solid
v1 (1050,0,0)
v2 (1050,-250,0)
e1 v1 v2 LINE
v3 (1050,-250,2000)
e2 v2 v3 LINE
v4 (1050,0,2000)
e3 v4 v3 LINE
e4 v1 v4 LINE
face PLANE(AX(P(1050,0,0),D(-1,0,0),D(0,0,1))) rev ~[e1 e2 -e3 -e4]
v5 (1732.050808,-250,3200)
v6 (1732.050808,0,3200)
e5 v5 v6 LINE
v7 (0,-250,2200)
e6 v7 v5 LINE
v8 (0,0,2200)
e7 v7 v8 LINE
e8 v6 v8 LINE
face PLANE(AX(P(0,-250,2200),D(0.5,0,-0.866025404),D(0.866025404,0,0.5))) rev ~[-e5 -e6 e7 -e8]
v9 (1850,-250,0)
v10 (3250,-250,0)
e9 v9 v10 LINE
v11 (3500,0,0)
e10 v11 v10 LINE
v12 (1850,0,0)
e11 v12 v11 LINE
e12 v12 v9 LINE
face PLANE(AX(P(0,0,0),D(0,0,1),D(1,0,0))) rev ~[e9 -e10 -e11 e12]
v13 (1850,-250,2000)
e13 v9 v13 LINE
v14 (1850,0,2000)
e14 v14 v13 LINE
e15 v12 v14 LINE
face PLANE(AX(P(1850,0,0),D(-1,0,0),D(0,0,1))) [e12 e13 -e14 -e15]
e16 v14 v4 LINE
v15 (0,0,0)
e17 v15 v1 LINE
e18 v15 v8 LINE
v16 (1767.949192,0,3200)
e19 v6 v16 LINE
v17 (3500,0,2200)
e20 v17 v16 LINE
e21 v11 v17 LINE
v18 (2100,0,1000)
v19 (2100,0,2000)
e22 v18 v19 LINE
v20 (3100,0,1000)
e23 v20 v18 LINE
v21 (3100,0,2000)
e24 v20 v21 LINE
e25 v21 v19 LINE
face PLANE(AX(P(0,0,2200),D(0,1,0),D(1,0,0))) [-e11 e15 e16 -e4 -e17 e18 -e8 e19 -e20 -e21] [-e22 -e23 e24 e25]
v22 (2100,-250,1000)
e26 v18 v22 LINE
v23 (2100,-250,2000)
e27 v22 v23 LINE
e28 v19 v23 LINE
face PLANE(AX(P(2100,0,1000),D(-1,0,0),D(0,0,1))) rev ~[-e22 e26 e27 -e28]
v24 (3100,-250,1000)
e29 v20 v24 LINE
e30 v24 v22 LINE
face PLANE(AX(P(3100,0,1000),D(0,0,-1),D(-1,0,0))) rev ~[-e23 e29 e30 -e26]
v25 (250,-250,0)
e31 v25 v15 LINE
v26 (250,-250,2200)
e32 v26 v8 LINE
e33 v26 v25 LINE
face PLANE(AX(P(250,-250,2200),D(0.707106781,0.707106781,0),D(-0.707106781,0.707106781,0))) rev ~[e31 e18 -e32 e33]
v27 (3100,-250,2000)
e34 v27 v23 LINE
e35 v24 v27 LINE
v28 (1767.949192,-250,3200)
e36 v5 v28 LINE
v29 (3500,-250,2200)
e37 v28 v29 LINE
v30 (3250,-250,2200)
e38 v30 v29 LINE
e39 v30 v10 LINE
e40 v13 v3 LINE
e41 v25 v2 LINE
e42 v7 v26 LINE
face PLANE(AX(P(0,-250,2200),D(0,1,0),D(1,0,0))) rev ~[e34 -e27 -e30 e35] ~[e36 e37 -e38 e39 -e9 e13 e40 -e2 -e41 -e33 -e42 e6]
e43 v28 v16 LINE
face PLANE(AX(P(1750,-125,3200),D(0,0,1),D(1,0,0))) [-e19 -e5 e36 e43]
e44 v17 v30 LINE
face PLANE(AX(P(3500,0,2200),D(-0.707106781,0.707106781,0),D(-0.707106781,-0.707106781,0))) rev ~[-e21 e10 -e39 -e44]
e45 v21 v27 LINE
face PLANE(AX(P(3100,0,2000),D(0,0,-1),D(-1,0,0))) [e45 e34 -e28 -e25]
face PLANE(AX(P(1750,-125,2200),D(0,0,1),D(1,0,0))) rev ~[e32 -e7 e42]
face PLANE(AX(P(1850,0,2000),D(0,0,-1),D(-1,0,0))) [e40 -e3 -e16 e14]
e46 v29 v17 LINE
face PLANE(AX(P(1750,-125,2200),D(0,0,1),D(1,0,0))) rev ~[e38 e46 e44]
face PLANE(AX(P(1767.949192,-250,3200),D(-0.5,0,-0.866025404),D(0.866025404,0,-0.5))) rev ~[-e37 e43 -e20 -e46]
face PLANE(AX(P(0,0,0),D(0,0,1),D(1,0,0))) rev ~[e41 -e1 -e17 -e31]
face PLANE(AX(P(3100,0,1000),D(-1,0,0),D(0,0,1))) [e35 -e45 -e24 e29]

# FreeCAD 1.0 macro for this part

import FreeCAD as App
import Part
import Sketcher

V = App.Vector
Q = App.Units.Quantity

doc = App.newDocument("Part")
body = doc.addObject("PartDesign::Body", "Body")

# Sketch on XZ plane
sketch1 = body.newObject("Sketcher::SketchObject", "Sketch")
sketch1.AttachmentSupport = (doc.getObject("XZ_Plane"), [""])
sketch1.MapMode = "FlatFace"
sketch1.addGeometry([
    Part.LineSegment(V(0, 2200, 0), V(0, 0, 0)),
    Part.LineSegment(V(0, 0, 0), V(3500, 0, 0)),
    Part.LineSegment(V(3500, 0, 0), V(3500, 2200, 0)),
    Part.LineSegment(V(3500, 2200, 0), V(0, 2200, 0)),
], False)
sketch1.addConstraint([
    Sketcher.Constraint("Coincident", 0, 2, 1, 1),
    Sketcher.Constraint("Coincident", 1, 2, 2, 1),
    Sketcher.Constraint("Coincident", 2, 2, 3, 1),
    Sketcher.Constraint("Coincident", 3, 2, 0, 1),
    Sketcher.Constraint("Vertical", 0),
    Sketcher.Constraint("Horizontal", 1),
    Sketcher.Constraint("Vertical", 2),
    Sketcher.Constraint("Horizontal", 3),
    Sketcher.Constraint("Coincident", 0, 2, -1, 1),
    Sketcher.Constraint("DistanceX", 1, 1, 1, 2, 3500.0),
    Sketcher.Constraint("DistanceY", 0, 2, 0, 1, 2200.0),
])
pad1 = body.newObject("PartDesign::Pad", "Pad")
pad1.Profile = sketch1
pad1.Length = 250

# Sketch on XY plane
sketch2 = body.newObject("Sketcher::SketchObject", "Sketch001")
sketch2.AttachmentSupport = (doc.getObject("XY_Plane"), [""])
sketch2.MapMode = "FlatFace"
sketch2.AttachmentOffset = App.Placement(V(0, 0, 2200), App.Rotation())
sketch2.addGeometry([
    Part.LineSegment(V(250, -250, 0), V(0, 0, 0)),  # 0
    Part.LineSegment(V(0, 0, 0), V(0, -250, 0)),  # 1
    Part.LineSegment(V(0, -250, 0), V(250, -250, 0)),  # 2
    Part.LineSegment(V(3250, -250, 0), V(3500, -250, 0)),  # 3
    Part.LineSegment(V(3500, -250, 0), V(3500, 0, 0)),  # 4
    Part.LineSegment(V(3500, 0, 0), V(3250, -250, 0)),  # 5
], False)
sketch2.addConstraint([
    Sketcher.Constraint("Coincident", 0, 2, 1, 1),
    Sketcher.Constraint("Coincident", 1, 2, 2, 1),
    Sketcher.Constraint("Coincident", 2, 2, 0, 1),
    Sketcher.Constraint("Coincident", 3, 2, 4, 1),
    Sketcher.Constraint("Coincident", 4, 2, 5, 1),
    Sketcher.Constraint("Coincident", 5, 2, 3, 1),
    Sketcher.Constraint("Vertical", 1),
    Sketcher.Constraint("Horizontal", 2),
    Sketcher.Constraint("Horizontal", 3),
    Sketcher.Constraint("Vertical", 4),
    Sketcher.Constraint("Coincident", 0, 2, -1, 1),
    Sketcher.Constraint("PointOnObject", 4, 2, -1),
    Sketcher.Constraint("Perpendicular", 0, 5),
    Sketcher.Constraint("Horizontal", 2, 2, 3, 2),
    Sketcher.Constraint("Equal", 2, 3),
    Sketcher.Constraint("DistanceX", 2, 1, 2, 2, 250.0),
    Sketcher.Constraint("DistanceX", -1, 1, 3, 2, 3500.0),
])
pocket1 = body.newObject("PartDesign::Pocket", "Pocket")
pocket1.Profile = sketch2
pocket1.Type = "ThroughAll"

# Sketch on XY plane
sketch3 = body.newObject("Sketcher::SketchObject", "Sketch002")
sketch3.AttachmentSupport = (doc.getObject("XY_Plane"), [""])
sketch3.MapMode = "FlatFace"
sketch3.AttachmentOffset = App.Placement(V(0, 0, 2200), App.Rotation())
sketch3.addGeometry([
    Part.LineSegment(V(0, 0, 0), V(0, -250, 0)),
    Part.LineSegment(V(0, -250, 0), V(3500, -250, 0)),
    Part.LineSegment(V(3500, -250, 0), V(3500, 0, 0)),
    Part.LineSegment(V(3500, 0, 0), V(0, 0, 0)),
], False)
sketch3.addConstraint([
    Sketcher.Constraint("Coincident", 0, 2, 1, 1),
    Sketcher.Constraint("Coincident", 1, 2, 2, 1),
    Sketcher.Constraint("Coincident", 2, 2, 3, 1),
    Sketcher.Constraint("Coincident", 3, 2, 0, 1),
    Sketcher.Constraint("Vertical", 0),
    Sketcher.Constraint("Horizontal", 1),
    Sketcher.Constraint("Vertical", 2),
    Sketcher.Constraint("Horizontal", 3),
    Sketcher.Constraint("Coincident", 3, 2, -1, 1),
    Sketcher.Constraint("DistanceX", 1, 1, 1, 2, 3500.0),
    Sketcher.Constraint("DistanceY", 0, 2, 0, 1, 250.0),
])
pad2 = body.newObject("PartDesign::Pad", "Pad001")
pad2.Profile = sketch3
pad2.Length = 1000

# Sketch on XZ plane
sketch4 = body.newObject("Sketcher::SketchObject", "Sketch003")
sketch4.AttachmentSupport = (doc.getObject("XZ_Plane"), [""])
sketch4.MapMode = "FlatFace"
sketch4.AttachmentOffset = App.Placement(V(0, 0, 250), App.Rotation())
sketch4.addGeometry([
    Part.LineSegment(V(0, 3200, 0), V(0, 2200, 0)),  # 0
    Part.LineSegment(V(0, 2200, 0), V(1732, 3200, 0)),  # 1
    Part.LineSegment(V(1732, 3200, 0), V(0, 3200, 0)),  # 2
    Part.LineSegment(V(3500, 3200, 0), V(1768, 3200, 0)),  # 3
    Part.LineSegment(V(1768, 3200, 0), V(3500, 2200, 0)),  # 4
    Part.LineSegment(V(3500, 2200, 0), V(3500, 3200, 0)),  # 5
    Part.LineSegment(V(1750, 3210, 0), V(1732, 3200, 0)),  # 6
    Part.LineSegment(V(1732, 3200, 0), V(1768, 3200, 0)),  # 7
    Part.LineSegment(V(1768, 3200, 0), V(1750, 3210, 0)),  # 8
], False)
sketch4.addConstraint([
    Sketcher.Constraint("Coincident", 0, 2, 1, 1),
    Sketcher.Constraint("Coincident", 1, 2, 2, 1),
    Sketcher.Constraint("Coincident", 2, 2, 0, 1),
    Sketcher.Constraint("Coincident", 3, 2, 4, 1),
    Sketcher.Constraint("Coincident", 4, 2, 5, 1),
    Sketcher.Constraint("Coincident", 5, 2, 3, 1),
    Sketcher.Constraint("Coincident", 6, 2, 7, 1),
    Sketcher.Constraint("Coincident", 7, 2, 8, 1),
    Sketcher.Constraint("Coincident", 8, 2, 6, 1),
    Sketcher.Constraint("Vertical", 0),
    Sketcher.Constraint("Horizontal", 2),
    Sketcher.Constraint("Horizontal", 3),
    Sketcher.Constraint("Vertical", 5),
    Sketcher.Constraint("Horizontal", 7),
    Sketcher.Constraint("Coincident", 6, 2, 1, 2),
    Sketcher.Constraint("Coincident", 7, 2, 3, 2),
    Sketcher.Constraint("PointOnObject", 0, 2, -2),
    Sketcher.Constraint("Parallel", 1, 6),
    Sketcher.Constraint("Parallel", 4, 8),
    Sketcher.Constraint("Horizontal", 0, 2, 4, 2),
    Sketcher.Constraint("Equal", 2, 3),
    Sketcher.Constraint("DistanceY", 0, 2, 0, 1, 1000.0),
    Sketcher.Constraint("Angle", 1, Q("30 deg")),
    Sketcher.Constraint("DistanceY", -1, 1, 0, 2, 2200.0),
    Sketcher.Constraint("DistanceX", -1, 1, 4, 2, 3500.0),
])
pocket2 = body.newObject("PartDesign::Pocket", "Pocket001")
pocket2.Profile = sketch4
pocket2.Type = "ThroughAll"

# Sketch on XZ plane
sketch5 = body.newObject("Sketcher::SketchObject", "Sketch004")
sketch5.AttachmentSupport = (doc.getObject("XZ_Plane"), [""])
sketch5.MapMode = "FlatFace"
sketch5.addGeometry([
    Part.LineSegment(V(1850, 2000, 0), V(1850, 0, 0)),
    Part.LineSegment(V(1850, 0, 0), V(1050, 0, 0)),
    Part.LineSegment(V(1050, 0, 0), V(1050, 2000, 0)),
    Part.LineSegment(V(1050, 2000, 0), V(1850, 2000, 0)),
], False)
sketch5.addConstraint([
    Sketcher.Constraint("Coincident", 0, 2, 1, 1),
    Sketcher.Constraint("Coincident", 1, 2, 2, 1),
    Sketcher.Constraint("Coincident", 2, 2, 3, 1),
    Sketcher.Constraint("Coincident", 3, 2, 0, 1),
    Sketcher.Constraint("Vertical", 0),
    Sketcher.Constraint("Horizontal", 1),
    Sketcher.Constraint("Vertical", 2),
    Sketcher.Constraint("Horizontal", 3),
    Sketcher.Constraint("PointOnObject", 0, 2, -1),
    Sketcher.Constraint("DistanceX", 1, 2, 1, 1, 800.0),
    Sketcher.Constraint("DistanceY", 0, 2, 0, 1, 2000.0),
    Sketcher.Constraint("DistanceX", -1, 1, 0, 2, 1850.0),
])
pocket3 = body.newObject("PartDesign::Pocket", "Pocket002")
pocket3.Profile = sketch5
pocket3.Type = "ThroughAll"
pocket3.Reversed = True

# Sketch on XZ plane
sketch6 = body.newObject("Sketcher::SketchObject", "Sketch005")
sketch6.AttachmentSupport = (doc.getObject("XZ_Plane"), [""])
sketch6.MapMode = "FlatFace"
sketch6.addGeometry([
    Part.LineSegment(V(3100, 2000, 0), V(3100, 1000, 0)),
    Part.LineSegment(V(3100, 1000, 0), V(2100, 1000, 0)),
    Part.LineSegment(V(2100, 1000, 0), V(2100, 2000, 0)),
    Part.LineSegment(V(2100, 2000, 0), V(3100, 2000, 0)),
], False)
sketch6.addConstraint([
    Sketcher.Constraint("Coincident", 0, 2, 1, 1),
    Sketcher.Constraint("Coincident", 1, 2, 2, 1),
    Sketcher.Constraint("Coincident", 2, 2, 3, 1),
    Sketcher.Constraint("Coincident", 3, 2, 0, 1),
    Sketcher.Constraint("Vertical", 0),
    Sketcher.Constraint("Horizontal", 1),
    Sketcher.Constraint("Vertical", 2),
    Sketcher.Constraint("Horizontal", 3),
    Sketcher.Constraint("Equal", 3, 0),
    Sketcher.Constraint("DistanceX", 1, 2, 1, 1, 1000.0),
    Sketcher.Constraint("DistanceX", -1, 1, 0, 2, 3100.0),
    Sketcher.Constraint("DistanceY", -1, 1, 0, 2, 1000.0),
])
pocket4 = body.newObject("PartDesign::Pocket", "Pocket003")
pocket4.Profile = sketch6
pocket4.Type = "ThroughAll"
pocket4.Reversed = True

doc.recompute()
